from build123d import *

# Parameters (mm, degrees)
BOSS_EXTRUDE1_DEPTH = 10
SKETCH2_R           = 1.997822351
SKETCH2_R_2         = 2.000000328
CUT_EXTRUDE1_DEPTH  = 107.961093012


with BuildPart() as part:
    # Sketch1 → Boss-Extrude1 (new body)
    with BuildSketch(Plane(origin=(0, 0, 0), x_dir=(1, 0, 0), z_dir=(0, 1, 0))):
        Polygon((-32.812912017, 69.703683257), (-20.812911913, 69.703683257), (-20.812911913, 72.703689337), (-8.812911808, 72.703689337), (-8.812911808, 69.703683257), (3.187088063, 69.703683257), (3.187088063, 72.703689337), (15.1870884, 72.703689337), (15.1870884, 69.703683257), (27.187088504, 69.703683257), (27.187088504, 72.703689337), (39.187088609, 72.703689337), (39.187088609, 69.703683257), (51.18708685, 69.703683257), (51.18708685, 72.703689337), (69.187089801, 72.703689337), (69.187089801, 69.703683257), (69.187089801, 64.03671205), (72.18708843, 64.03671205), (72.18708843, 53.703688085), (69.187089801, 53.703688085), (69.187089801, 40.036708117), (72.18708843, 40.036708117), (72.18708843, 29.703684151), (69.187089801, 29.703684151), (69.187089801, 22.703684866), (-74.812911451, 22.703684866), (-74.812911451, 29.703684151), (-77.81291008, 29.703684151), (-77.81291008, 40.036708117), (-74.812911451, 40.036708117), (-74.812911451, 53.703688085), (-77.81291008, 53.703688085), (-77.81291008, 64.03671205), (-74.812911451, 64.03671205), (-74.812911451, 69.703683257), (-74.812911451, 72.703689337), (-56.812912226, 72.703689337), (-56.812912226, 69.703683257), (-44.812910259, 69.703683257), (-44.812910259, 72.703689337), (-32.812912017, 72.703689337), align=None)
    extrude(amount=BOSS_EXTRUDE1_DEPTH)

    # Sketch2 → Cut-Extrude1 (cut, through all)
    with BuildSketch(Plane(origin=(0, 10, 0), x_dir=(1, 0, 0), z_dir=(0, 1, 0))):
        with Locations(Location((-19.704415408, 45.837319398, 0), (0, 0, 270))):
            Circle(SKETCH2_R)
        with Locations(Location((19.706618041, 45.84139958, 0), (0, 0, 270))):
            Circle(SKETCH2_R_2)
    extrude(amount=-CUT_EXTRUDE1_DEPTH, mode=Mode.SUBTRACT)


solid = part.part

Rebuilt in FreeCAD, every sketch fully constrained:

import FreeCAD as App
import Part
import Sketcher
from FreeCAD import Vector


def add_polygon(sketch, points):
    """Adds a closed chain of lines whose ends are joined by coincident constraints."""
    first, n = sketch.GeometryCount, len(points)
    for a, b in zip(points, points[1:] + points[:1]):
        sketch.addGeometry(Part.LineSegment(App.Vector(*a, 0), App.Vector(*b, 0)), False)
    for i in range(n):
        sketch.addConstraint(Sketcher.Constraint("Coincident", first + i, 2, first + (i + 1) % n, 1))

doc = App.newDocument("Part")
body = doc.addObject("PartDesign::Body", "Body")

# Sketch on XZ plane
sketch1 = doc.addObject("Sketcher::SketchObject", "Sketch")
body.addObject(sketch1)
sketch1.AttachmentSupport = (doc.XZ_Plane, [""])
sketch1.MapMode = "FlatFace"
add_polygon(sketch1, [(-20.812912, -69.703683), (-32.812912, -69.703683), (-32.812912, -72.703689), (-44.81291, -72.703689), (-44.81291, -69.703683), (-56.812912, -69.703683), (-56.812912, -72.703689), (-74.812911, -72.703689), (-74.812911, -64.036712), (-77.81291, -64.036712), (-77.81291, -53.703688), (-74.812911, -53.703688), (-74.812911, -40.036708), (-77.81291, -40.036708), (-77.81291, -29.703684), (-74.812911, -29.703684), (-74.812911, -22.703685), (69.18709, -22.703685), (69.18709, -29.703684), (72.187088, -29.703684), (72.187088, -40.036708), (69.18709, -40.036708), (69.18709, -53.703688), (72.187088, -53.703688), (72.187088, -64.036712), (69.18709, -64.036712), (69.18709, -72.703689), (51.187087, -72.703689), (51.187087, -69.703683), (39.187089, -69.703683), (39.187089, -72.703689), (27.187089, -72.703689), (27.187089, -69.703683), (15.187088, -69.703683), (15.187088, -72.703689), (3.187088, -72.703689), (3.187088, -69.703683), (-8.812912, -69.703683), (-8.812912, -72.703689), (-20.812912, -72.703689)])  # lines 0-39
sketch1.addConstraint(Sketcher.Constraint("Horizontal", 0))
sketch1.addConstraint(Sketcher.Constraint("Vertical", 1))
sketch1.addConstraint(Sketcher.Constraint("Horizontal", 2))
sketch1.addConstraint(Sketcher.Constraint("Vertical", 3))
sketch1.addConstraint(Sketcher.Constraint("Horizontal", 4))
sketch1.addConstraint(Sketcher.Constraint("Vertical", 5))
sketch1.addConstraint(Sketcher.Constraint("Horizontal", 6))
sketch1.addConstraint(Sketcher.Constraint("Vertical", 7))
sketch1.addConstraint(Sketcher.Constraint("Horizontal", 8))
sketch1.addConstraint(Sketcher.Constraint("Vertical", 9))
sketch1.addConstraint(Sketcher.Constraint("Horizontal", 10))
sketch1.addConstraint(Sketcher.Constraint("Vertical", 11))
sketch1.addConstraint(Sketcher.Constraint("Horizontal", 12))
sketch1.addConstraint(Sketcher.Constraint("Vertical", 13))
sketch1.addConstraint(Sketcher.Constraint("Horizontal", 14))
sketch1.addConstraint(Sketcher.Constraint("Vertical", 15))
sketch1.addConstraint(Sketcher.Constraint("Horizontal", 16))
sketch1.addConstraint(Sketcher.Constraint("Vertical", 17))
sketch1.addConstraint(Sketcher.Constraint("Horizontal", 18))
sketch1.addConstraint(Sketcher.Constraint("Vertical", 19))
sketch1.addConstraint(Sketcher.Constraint("Horizontal", 20))
sketch1.addConstraint(Sketcher.Constraint("Vertical", 21))
sketch1.addConstraint(Sketcher.Constraint("Horizontal", 22))
sketch1.addConstraint(Sketcher.Constraint("Vertical", 23))
sketch1.addConstraint(Sketcher.Constraint("Horizontal", 24))
sketch1.addConstraint(Sketcher.Constraint("Vertical", 25))
sketch1.addConstraint(Sketcher.Constraint("Horizontal", 26))
sketch1.addConstraint(Sketcher.Constraint("Vertical", 27))
sketch1.addConstraint(Sketcher.Constraint("Horizontal", 28))
sketch1.addConstraint(Sketcher.Constraint("Vertical", 29))
sketch1.addConstraint(Sketcher.Constraint("Horizontal", 30))
sketch1.addConstraint(Sketcher.Constraint("Vertical", 31))
sketch1.addConstraint(Sketcher.Constraint("Horizontal", 32))
sketch1.addConstraint(Sketcher.Constraint("Vertical", 33))
sketch1.addConstraint(Sketcher.Constraint("Horizontal", 34))
sketch1.addConstraint(Sketcher.Constraint("Vertical", 35))
sketch1.addConstraint(Sketcher.Constraint("Horizontal", 36))
sketch1.addConstraint(Sketcher.Constraint("Vertical", 37))
sketch1.addConstraint(Sketcher.Constraint("Horizontal", 38))
sketch1.addConstraint(Sketcher.Constraint("Vertical", 39))
sketch1.addConstraint(Sketcher.Constraint("Horizontal", 0, 2, 3, 2))
sketch1.addConstraint(Sketcher.Constraint("Horizontal", 2, 2, 5, 2))
sketch1.addConstraint(Sketcher.Constraint("Horizontal", 14, 2, 17, 2))
sketch1.addConstraint(Sketcher.Constraint("Horizontal", 12, 2, 19, 2))
sketch1.addConstraint(Sketcher.Constraint("Horizontal", 10, 2, 21, 2))
sketch1.addConstraint(Sketcher.Constraint("Horizontal", 8, 2, 23, 2))
sketch1.addConstraint(Sketcher.Constraint("Horizontal", 6, 2, 25, 2))
sketch1.addConstraint(Sketcher.Constraint("Horizontal", 4, 2, 27, 2))
sketch1.addConstraint(Sketcher.Constraint("Horizontal", 26, 2, 29, 2))
sketch1.addConstraint(Sketcher.Constraint("Horizontal", 28, 2, 31, 2))
sketch1.addConstraint(Sketcher.Constraint("Horizontal", 30, 2, 33, 2))
sketch1.addConstraint(Sketcher.Constraint("Horizontal", 32, 2, 35, 2))
sketch1.addConstraint(Sketcher.Constraint("Horizontal", 34, 2, 37, 2))
sketch1.addConstraint(Sketcher.Constraint("Vertical", 7, 2, 10, 2))
sketch1.addConstraint(Sketcher.Constraint("Vertical", 9, 2, 12, 2))
sketch1.addConstraint(Sketcher.Constraint("Vertical", 11, 2, 14, 2))
sketch1.addConstraint(Sketcher.Constraint("Vertical", 17, 2, 20, 2))
sketch1.addConstraint(Sketcher.Constraint("Vertical", 19, 2, 22, 2))
sketch1.addConstraint(Sketcher.Constraint("Vertical", 21, 2, 24, 2))
sketch1.addConstraint(Sketcher.Constraint("Equal", 0, 2))
sketch1.addConstraint(Sketcher.Constraint("Equal", 0, 4))
sketch1.addConstraint(Sketcher.Constraint("Equal", 14, 18))
sketch1.addConstraint(Sketcher.Constraint("Equal", 2, 28))
sketch1.addConstraint(Sketcher.Constraint("Equal", 28, 30))
sketch1.addConstraint(Sketcher.Constraint("Equal", 30, 32))
sketch1.addConstraint(Sketcher.Constraint("Equal", 32, 34))
sketch1.addConstraint(Sketcher.Constraint("Equal", 34, 36))
sketch1.addConstraint(Sketcher.Constraint("Equal", 36, 38))
sketch1.addConstraint(Sketcher.Constraint("Equal", 9, 13))
sketch1.addConstraint(Sketcher.Constraint("DistanceX", 0, 2, 0, 1, 12.0))
sketch1.addConstraint(Sketcher.Constraint("DistanceX", 6, 2, 6, 1, 17.999999))
sketch1.addConstraint(Sketcher.Constraint("DistanceX", 8, 2, 8, 1, 2.999999))
sketch1.addConstraint(Sketcher.Constraint("DistanceX", 16, 1, 16, 2, 144.000001))
sketch1.addConstraint(Sketcher.Constraint("DistanceY", 15, 1, 15, 2, 6.999999))
sketch1.addConstraint(Sketcher.Constraint("DistanceY", 6, 2, 9, 2, 19.000001))
sketch1.addConstraint(Sketcher.Constraint("DistanceY", 0, 2, 16, 2, 46.999998))
sketch1.addConstraint(Sketcher.Constraint("DistanceY", 11, 1, 11, 2, 13.66698))
sketch1.addConstraint(Sketcher.Constraint("DistanceY", 1, 2, 1, 1, 3.000006))
sketch1.addConstraint(Sketcher.Constraint("DistanceY", 1, 2, -1, 1, 72.703689))
sketch1.addConstraint(Sketcher.Constraint("DistanceX", 2, 2, -1, 1, 44.81291))
pad1 = doc.addObject("PartDesign::Pad", "Pad")
body.addObject(pad1)
pad1.Profile = sketch1
pad1.Length = 10
pad1.Reversed = True

# Sketch on XZ plane
sketch2 = doc.addObject("Sketcher::SketchObject", "Sketch001")
body.addObject(sketch2)
sketch2.AttachmentSupport = (doc.XZ_Plane, [""])
sketch2.MapMode = "FlatFace"
sketch2.AttachmentOffset = App.Placement(Vector(0, 0, -10), App.Rotation())
sketch2.addGeometry(Part.Circle(Vector(-19.704415, -45.837319, 0), Vector(0, 0, 1), 1.997822), False)
sketch2.addGeometry(Part.Circle(Vector(19.706618, -45.8414, 0), Vector(0, 0, 1), 2), False)
sketch2.addConstraint(Sketcher.Constraint("Diameter", 1, 4.000001))
sketch2.addConstraint(Sketcher.Constraint("Diameter", 0, 3.995645))
sketch2.addConstraint(Sketcher.Constraint("DistanceY", 1, 3, -1, 1, 45.8414))
sketch2.addConstraint(Sketcher.Constraint("DistanceY", 0, 3, -1, 1, 45.837319))
sketch2.addConstraint(Sketcher.Constraint("DistanceX", -1, 1, 1, 3, 19.706618))
sketch2.addConstraint(Sketcher.Constraint("DistanceX", 0, 3, -1, 1, 19.704415))
pocket1 = doc.addObject("PartDesign::Pocket", "Pocket")
body.addObject(pocket1)
pocket1.Profile = sketch2
pocket1.Type = "ThroughAll"
pocket1.Reversed = True

doc.recompute()
